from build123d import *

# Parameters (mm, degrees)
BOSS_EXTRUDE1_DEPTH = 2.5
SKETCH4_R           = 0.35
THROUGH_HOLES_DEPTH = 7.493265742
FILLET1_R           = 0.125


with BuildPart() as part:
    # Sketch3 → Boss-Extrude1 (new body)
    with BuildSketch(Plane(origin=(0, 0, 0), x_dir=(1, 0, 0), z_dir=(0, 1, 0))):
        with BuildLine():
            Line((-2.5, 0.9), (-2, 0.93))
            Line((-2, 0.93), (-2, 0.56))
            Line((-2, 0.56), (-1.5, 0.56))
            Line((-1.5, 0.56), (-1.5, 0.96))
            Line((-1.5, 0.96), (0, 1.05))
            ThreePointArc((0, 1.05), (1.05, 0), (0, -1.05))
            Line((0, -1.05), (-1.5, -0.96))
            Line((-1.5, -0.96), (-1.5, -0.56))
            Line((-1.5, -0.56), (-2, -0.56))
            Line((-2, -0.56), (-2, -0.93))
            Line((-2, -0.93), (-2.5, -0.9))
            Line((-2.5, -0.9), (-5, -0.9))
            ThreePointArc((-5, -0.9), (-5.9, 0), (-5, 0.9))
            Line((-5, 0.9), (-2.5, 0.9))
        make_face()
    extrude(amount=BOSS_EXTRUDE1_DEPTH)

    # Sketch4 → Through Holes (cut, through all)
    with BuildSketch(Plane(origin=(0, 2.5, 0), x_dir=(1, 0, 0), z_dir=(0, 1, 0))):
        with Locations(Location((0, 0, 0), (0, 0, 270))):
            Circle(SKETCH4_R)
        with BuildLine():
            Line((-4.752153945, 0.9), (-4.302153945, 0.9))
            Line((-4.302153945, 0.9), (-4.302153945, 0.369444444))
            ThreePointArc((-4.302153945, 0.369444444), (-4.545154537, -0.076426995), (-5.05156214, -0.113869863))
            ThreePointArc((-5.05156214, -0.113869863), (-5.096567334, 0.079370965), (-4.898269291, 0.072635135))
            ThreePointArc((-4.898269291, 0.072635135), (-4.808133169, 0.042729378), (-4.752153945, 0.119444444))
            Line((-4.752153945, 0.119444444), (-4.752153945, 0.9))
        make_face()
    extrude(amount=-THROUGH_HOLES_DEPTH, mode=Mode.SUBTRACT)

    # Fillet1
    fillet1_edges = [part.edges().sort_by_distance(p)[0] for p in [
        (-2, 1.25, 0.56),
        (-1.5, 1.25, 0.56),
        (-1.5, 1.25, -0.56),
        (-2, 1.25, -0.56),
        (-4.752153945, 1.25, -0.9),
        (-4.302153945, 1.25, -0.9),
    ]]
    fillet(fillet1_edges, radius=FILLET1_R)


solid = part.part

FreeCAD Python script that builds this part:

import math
import FreeCAD as App
import Part
import Sketcher
Q = App.Units.Quantity


def edges_at(feature, points):
    """Names of the edges that pass closest to the given points."""
    edges = feature.Shape.Edges
    near = lambda p: min(range(len(edges)), key=lambda i: edges[i].distToShape(Part.Vertex(*p))[0])
    return sorted({f"Edge{near(p) + 1}" for p in points})

doc = App.newDocument("Part")
params = doc.addObject("Spreadsheet::Sheet", "Params")
for row, (alias, value) in enumerate([
    ("sketch1_radius", "0.9 mm"),
    ("sketch1_radius2", "1.05 mm"),
    ("sketch1_width", "2.5 mm"),
    ("sketch1_width2", "0.5 mm"),
    ("sketch1_height", "0.4 mm"),
    ("pad1_length", "2.5 mm"),
    ("sketch2_diameter", "0.7 mm"),
    ("sketch2_width", "0.45 mm"),
    ("fillet_radius", "0.125 mm"),
], start=1):
    params.set(f"A{row}", alias)
    params.set(f"B{row}", "=" + value)
    params.setAlias(f"B{row}", alias)

body = doc.addObject("PartDesign::Body", "Body")

sketch1 = body.newObject("Sketcher::SketchObject", "Sketch")
sketch1.AttachmentSupport = (doc.getObject("XZ_Plane"), [""])
sketch1.MapMode = "FlatFace"
sketch1.addGeometry(Part.LineSegment(App.Vector(-2, -0.93, 0), App.Vector(-2.5, -0.9, 0)), False)
sketch1.addGeometry(Part.LineSegment(App.Vector(-2.5, -0.9, 0), App.Vector(-5, -0.9, 0)), False)
sketch1.addGeometry(Part.ArcOfCircle(Part.Circle(App.Vector(-5, 0, 0), App.Vector(0, 0, 1), 0.9), math.radians(90), math.radians(270)), False)
sketch1.addGeometry(Part.LineSegment(App.Vector(-5, 0.9, 0), App.Vector(-2.5, 0.9, 0)), False)
sketch1.addGeometry(Part.LineSegment(App.Vector(-2.5, 0.9, 0), App.Vector(-2, 0.93, 0)), False)
sketch1.addGeometry(Part.LineSegment(App.Vector(-2, 0.93, 0), App.Vector(-2, 0.56, 0)), False)
sketch1.addGeometry(Part.LineSegment(App.Vector(-2, 0.56, 0), App.Vector(-1.5, 0.56, 0)), False)
sketch1.addGeometry(Part.LineSegment(App.Vector(-1.5, 0.56, 0), App.Vector(-1.5, 0.96, 0)), False)
sketch1.addGeometry(Part.LineSegment(App.Vector(-1.5, 0.96, 0), App.Vector(0, 1.05, 0)), False)
sketch1.addGeometry(Part.ArcOfCircle(Part.Circle(App.Vector(0, 0, 0), App.Vector(0, 0, 1), 1.05), math.radians(-90), math.radians(90)), False)
sketch1.addGeometry(Part.LineSegment(App.Vector(0, -1.05, 0), App.Vector(-1.5, -0.96, 0)), False)
sketch1.addGeometry(Part.LineSegment(App.Vector(-1.5, -0.96, 0), App.Vector(-1.5, -0.56, 0)), False)
sketch1.addGeometry(Part.LineSegment(App.Vector(-1.5, -0.56, 0), App.Vector(-2, -0.56, 0)), False)
sketch1.addGeometry(Part.LineSegment(App.Vector(-2, -0.56, 0), App.Vector(-2, -0.93, 0)), False)
sketch1.addConstraint(Sketcher.Constraint("Coincident", 0, 2, 1, 1))
sketch1.addConstraint(Sketcher.Constraint("Tangent", 1, 2, 2, 2))
sketch1.addConstraint(Sketcher.Constraint("Tangent", 2, 1, 3, 1))
sketch1.addConstraint(Sketcher.Constraint("Coincident", 3, 2, 4, 1))
sketch1.addConstraint(Sketcher.Constraint("Coincident", 4, 2, 5, 1))
sketch1.addConstraint(Sketcher.Constraint("Coincident", 5, 2, 6, 1))
sketch1.addConstraint(Sketcher.Constraint("Coincident", 6, 2, 7, 1))
sketch1.addConstraint(Sketcher.Constraint("Coincident", 7, 2, 8, 1))
sketch1.addConstraint(Sketcher.Constraint("Coincident", 8, 2, 9, 2))
sketch1.addConstraint(Sketcher.Constraint("Coincident", 9, 1, 10, 1))
sketch1.addConstraint(Sketcher.Constraint("Coincident", 10, 2, 11, 1))
sketch1.addConstraint(Sketcher.Constraint("Coincident", 11, 2, 12, 1))
sketch1.addConstraint(Sketcher.Constraint("Coincident", 12, 2, 13, 1))
sketch1.addConstraint(Sketcher.Constraint("Coincident", 13, 2, 0, 1))
sketch1.addConstraint(Sketcher.Constraint("Horizontal", 1))
sketch1.addConstraint(Sketcher.Constraint("Horizontal", 3))
sketch1.addConstraint(Sketcher.Constraint("Vertical", 5))
sketch1.addConstraint(Sketcher.Constraint("Horizontal", 6))
sketch1.addConstraint(Sketcher.Constraint("Vertical", 7))
sketch1.addConstraint(Sketcher.Constraint("Vertical", 11))
sketch1.addConstraint(Sketcher.Constraint("Horizontal", 12))
sketch1.addConstraint(Sketcher.Constraint("Vertical", 13))
sketch1.addConstraint(Sketcher.Constraint("Coincident", 9, 3, -1, 1))
sketch1.addConstraint(Sketcher.Constraint("Symmetric", 0, 2, 3, 2, -1))
sketch1.addConstraint(Sketcher.Constraint("Symmetric", 7, 2, 10, 2, -1))
sketch1.addConstraint(Sketcher.Constraint("Symmetric", 5, 2, 12, 2, -1))
sketch1.addConstraint(Sketcher.Constraint("PointOnObject", 8, 2, -2))
sketch1.addConstraint(Sketcher.Constraint("PointOnObject", 9, 1, -2))
sketch1.addConstraint(Sketcher.Constraint("Parallel", 4, 8))
sketch1.addConstraint(Sketcher.Constraint("Parallel", 0, 10))
sketch1.addConstraint(Sketcher.Constraint("Radius", 2, Q("0.9 mm")))
sketch1.addConstraint(Sketcher.Constraint("Radius", 9, Q("1.05 mm")))
sketch1.addConstraint(Sketcher.Constraint("DistanceX", 1, 2, 1, 1, Q("2.5 mm")))
sketch1.addConstraint(Sketcher.Constraint("DistanceX", 6, 1, 6, 2, Q("0.5 mm")))
sketch1.addConstraint(Sketcher.Constraint("DistanceY", 7, 1, 7, 2, Q("0.4 mm")))
sketch1.addConstraint(Sketcher.Constraint("DistanceX", 2, 3, -1, 1, Q("5 mm")))
sketch1.addConstraint(Sketcher.Constraint("DistanceX", 4, 2, -1, 1, Q("2 mm")))
sketch1.addConstraint(Sketcher.Constraint("DistanceY", 5, 2, 5, 1, Q("0.37 mm")))
sketch1.setExpression("Constraints[30]", "Params.sketch1_radius")
sketch1.setExpression("Constraints[31]", "Params.sketch1_radius2")
sketch1.setExpression("Constraints[32]", "Params.sketch1_width")
sketch1.setExpression("Constraints[33]", "Params.sketch1_width2")
sketch1.setExpression("Constraints[34]", "Params.sketch1_height")
pad1 = body.newObject("PartDesign::Pad", "Pad")
pad1.Profile = sketch1
pad1.setExpression("Length", "Params.pad1_length")
pad1.Reversed = True

sketch2 = body.newObject("Sketcher::SketchObject", "Sketch001")
sketch2.AttachmentSupport = (doc.getObject("XZ_Plane"), [""])
sketch2.MapMode = "FlatFace"
sketch2.AttachmentOffset = App.Placement(App.Vector(0, 0, -2.5), App.Rotation())
sketch2.addGeometry(Part.Circle(App.Vector(0, 0, 0), App.Vector(0, 0, 1), 0.35), False)
sketch2.addGeometry(Part.LineSegment(App.Vector(-4.3, -0.9, 0), App.Vector(-4.75, -0.9, 0)), False)
sketch2.addGeometry(Part.LineSegment(App.Vector(-4.75, -0.9, 0), App.Vector(-4.75, -0.12, 0)), False)
sketch2.addGeometry(Part.ArcOfCircle(Part.Circle(App.Vector(-4.83, -0.12, 0), App.Vector(0, 0, 1), 0.08), math.radians(0), math.radians(144)), False)
sketch2.addGeometry(Part.ArcOfCircle(Part.Circle(App.Vector(-5, 0, 0), App.Vector(0, 0, 1), 0.12), math.radians(114), math.radians(324)), False)
sketch2.addGeometry(Part.ArcOfCircle(Part.Circle(App.Vector(-4.83, -0.37, 0), App.Vector(0, 0, 1), 0.53), math.radians(0), math.radians(114)), False)
sketch2.addGeometry(Part.LineSegment(App.Vector(-4.3, -0.37, 0), App.Vector(-4.3, -0.9, 0)), False)
sketch2.addConstraint(Sketcher.Constraint("Coincident", 1, 2, 2, 1))
sketch2.addConstraint(Sketcher.Constraint("Tangent", 2, 2, 3, 1))
sketch2.addConstraint(Sketcher.Constraint("Tangent", 3, 2, 4, 2))
sketch2.addConstraint(Sketcher.Constraint("Tangent", 4, 1, 5, 2))
sketch2.addConstraint(Sketcher.Constraint("Tangent", 5, 1, 6, 1))
sketch2.addConstraint(Sketcher.Constraint("Coincident", 6, 2, 1, 1))
sketch2.addConstraint(Sketcher.Constraint("Horizontal", 1))
sketch2.addConstraint(Sketcher.Constraint("Vertical", 2))
sketch2.addConstraint(Sketcher.Constraint("Vertical", 6))
sketch2.addConstraint(Sketcher.Constraint("Coincident", 0, 3, -1, 1))
sketch2.addConstraint(Sketcher.Constraint("PointOnObject", 4, 3, -1))
sketch2.addConstraint(Sketcher.Constraint("Vertical", 3, 3, 5, 3))
sketch2.addConstraint(Sketcher.Constraint("Diameter", 0, Q("0.7 mm")))
sketch2.addConstraint(Sketcher.Constraint("DistanceX", 4, 3, -1, 1, Q("5 mm")))
sketch2.addConstraint(Sketcher.Constraint("Radius", 4, Q("0.125 mm")))
sketch2.addConstraint(Sketcher.Constraint("DistanceX", 1, 2, 1, 1, Q("0.45 mm")))
sketch2.addConstraint(Sketcher.Constraint("DistanceY", 1, 2, -1, 1, Q("0.9 mm")))
sketch2.addConstraint(Sketcher.Constraint("DistanceY", 5, 3, 3, 3, Q("0.25 mm")))
sketch2.addConstraint(Sketcher.Constraint("Radius", 3, Q("0.080556 mm")))
sketch2.setExpression("Constraints[12]", "Params.sketch2_diameter")
sketch2.setExpression("Constraints[15]", "Params.sketch2_width")
pocket1 = body.newObject("PartDesign::Pocket", "Pocket")
pocket1.Profile = sketch2
pocket1.Type = "ThroughAll"
pocket1.Reversed = True
doc.recompute()

fillet = body.newObject("PartDesign::Fillet", "Fillet")
fillet.Base = (pocket1, edges_at(pocket1, [
    (-2, 1.25, 0.56),
    (-1.5, 1.25, 0.56),
    (-1.5, 1.25, -0.56),
    (-2, 1.25, -0.56),
    (-4.752, 1.25, -0.9),
    (-4.302, 1.25, -0.9),
]))
fillet.setExpression("Radius", "Params.fillet_radius")

doc.recompute()
